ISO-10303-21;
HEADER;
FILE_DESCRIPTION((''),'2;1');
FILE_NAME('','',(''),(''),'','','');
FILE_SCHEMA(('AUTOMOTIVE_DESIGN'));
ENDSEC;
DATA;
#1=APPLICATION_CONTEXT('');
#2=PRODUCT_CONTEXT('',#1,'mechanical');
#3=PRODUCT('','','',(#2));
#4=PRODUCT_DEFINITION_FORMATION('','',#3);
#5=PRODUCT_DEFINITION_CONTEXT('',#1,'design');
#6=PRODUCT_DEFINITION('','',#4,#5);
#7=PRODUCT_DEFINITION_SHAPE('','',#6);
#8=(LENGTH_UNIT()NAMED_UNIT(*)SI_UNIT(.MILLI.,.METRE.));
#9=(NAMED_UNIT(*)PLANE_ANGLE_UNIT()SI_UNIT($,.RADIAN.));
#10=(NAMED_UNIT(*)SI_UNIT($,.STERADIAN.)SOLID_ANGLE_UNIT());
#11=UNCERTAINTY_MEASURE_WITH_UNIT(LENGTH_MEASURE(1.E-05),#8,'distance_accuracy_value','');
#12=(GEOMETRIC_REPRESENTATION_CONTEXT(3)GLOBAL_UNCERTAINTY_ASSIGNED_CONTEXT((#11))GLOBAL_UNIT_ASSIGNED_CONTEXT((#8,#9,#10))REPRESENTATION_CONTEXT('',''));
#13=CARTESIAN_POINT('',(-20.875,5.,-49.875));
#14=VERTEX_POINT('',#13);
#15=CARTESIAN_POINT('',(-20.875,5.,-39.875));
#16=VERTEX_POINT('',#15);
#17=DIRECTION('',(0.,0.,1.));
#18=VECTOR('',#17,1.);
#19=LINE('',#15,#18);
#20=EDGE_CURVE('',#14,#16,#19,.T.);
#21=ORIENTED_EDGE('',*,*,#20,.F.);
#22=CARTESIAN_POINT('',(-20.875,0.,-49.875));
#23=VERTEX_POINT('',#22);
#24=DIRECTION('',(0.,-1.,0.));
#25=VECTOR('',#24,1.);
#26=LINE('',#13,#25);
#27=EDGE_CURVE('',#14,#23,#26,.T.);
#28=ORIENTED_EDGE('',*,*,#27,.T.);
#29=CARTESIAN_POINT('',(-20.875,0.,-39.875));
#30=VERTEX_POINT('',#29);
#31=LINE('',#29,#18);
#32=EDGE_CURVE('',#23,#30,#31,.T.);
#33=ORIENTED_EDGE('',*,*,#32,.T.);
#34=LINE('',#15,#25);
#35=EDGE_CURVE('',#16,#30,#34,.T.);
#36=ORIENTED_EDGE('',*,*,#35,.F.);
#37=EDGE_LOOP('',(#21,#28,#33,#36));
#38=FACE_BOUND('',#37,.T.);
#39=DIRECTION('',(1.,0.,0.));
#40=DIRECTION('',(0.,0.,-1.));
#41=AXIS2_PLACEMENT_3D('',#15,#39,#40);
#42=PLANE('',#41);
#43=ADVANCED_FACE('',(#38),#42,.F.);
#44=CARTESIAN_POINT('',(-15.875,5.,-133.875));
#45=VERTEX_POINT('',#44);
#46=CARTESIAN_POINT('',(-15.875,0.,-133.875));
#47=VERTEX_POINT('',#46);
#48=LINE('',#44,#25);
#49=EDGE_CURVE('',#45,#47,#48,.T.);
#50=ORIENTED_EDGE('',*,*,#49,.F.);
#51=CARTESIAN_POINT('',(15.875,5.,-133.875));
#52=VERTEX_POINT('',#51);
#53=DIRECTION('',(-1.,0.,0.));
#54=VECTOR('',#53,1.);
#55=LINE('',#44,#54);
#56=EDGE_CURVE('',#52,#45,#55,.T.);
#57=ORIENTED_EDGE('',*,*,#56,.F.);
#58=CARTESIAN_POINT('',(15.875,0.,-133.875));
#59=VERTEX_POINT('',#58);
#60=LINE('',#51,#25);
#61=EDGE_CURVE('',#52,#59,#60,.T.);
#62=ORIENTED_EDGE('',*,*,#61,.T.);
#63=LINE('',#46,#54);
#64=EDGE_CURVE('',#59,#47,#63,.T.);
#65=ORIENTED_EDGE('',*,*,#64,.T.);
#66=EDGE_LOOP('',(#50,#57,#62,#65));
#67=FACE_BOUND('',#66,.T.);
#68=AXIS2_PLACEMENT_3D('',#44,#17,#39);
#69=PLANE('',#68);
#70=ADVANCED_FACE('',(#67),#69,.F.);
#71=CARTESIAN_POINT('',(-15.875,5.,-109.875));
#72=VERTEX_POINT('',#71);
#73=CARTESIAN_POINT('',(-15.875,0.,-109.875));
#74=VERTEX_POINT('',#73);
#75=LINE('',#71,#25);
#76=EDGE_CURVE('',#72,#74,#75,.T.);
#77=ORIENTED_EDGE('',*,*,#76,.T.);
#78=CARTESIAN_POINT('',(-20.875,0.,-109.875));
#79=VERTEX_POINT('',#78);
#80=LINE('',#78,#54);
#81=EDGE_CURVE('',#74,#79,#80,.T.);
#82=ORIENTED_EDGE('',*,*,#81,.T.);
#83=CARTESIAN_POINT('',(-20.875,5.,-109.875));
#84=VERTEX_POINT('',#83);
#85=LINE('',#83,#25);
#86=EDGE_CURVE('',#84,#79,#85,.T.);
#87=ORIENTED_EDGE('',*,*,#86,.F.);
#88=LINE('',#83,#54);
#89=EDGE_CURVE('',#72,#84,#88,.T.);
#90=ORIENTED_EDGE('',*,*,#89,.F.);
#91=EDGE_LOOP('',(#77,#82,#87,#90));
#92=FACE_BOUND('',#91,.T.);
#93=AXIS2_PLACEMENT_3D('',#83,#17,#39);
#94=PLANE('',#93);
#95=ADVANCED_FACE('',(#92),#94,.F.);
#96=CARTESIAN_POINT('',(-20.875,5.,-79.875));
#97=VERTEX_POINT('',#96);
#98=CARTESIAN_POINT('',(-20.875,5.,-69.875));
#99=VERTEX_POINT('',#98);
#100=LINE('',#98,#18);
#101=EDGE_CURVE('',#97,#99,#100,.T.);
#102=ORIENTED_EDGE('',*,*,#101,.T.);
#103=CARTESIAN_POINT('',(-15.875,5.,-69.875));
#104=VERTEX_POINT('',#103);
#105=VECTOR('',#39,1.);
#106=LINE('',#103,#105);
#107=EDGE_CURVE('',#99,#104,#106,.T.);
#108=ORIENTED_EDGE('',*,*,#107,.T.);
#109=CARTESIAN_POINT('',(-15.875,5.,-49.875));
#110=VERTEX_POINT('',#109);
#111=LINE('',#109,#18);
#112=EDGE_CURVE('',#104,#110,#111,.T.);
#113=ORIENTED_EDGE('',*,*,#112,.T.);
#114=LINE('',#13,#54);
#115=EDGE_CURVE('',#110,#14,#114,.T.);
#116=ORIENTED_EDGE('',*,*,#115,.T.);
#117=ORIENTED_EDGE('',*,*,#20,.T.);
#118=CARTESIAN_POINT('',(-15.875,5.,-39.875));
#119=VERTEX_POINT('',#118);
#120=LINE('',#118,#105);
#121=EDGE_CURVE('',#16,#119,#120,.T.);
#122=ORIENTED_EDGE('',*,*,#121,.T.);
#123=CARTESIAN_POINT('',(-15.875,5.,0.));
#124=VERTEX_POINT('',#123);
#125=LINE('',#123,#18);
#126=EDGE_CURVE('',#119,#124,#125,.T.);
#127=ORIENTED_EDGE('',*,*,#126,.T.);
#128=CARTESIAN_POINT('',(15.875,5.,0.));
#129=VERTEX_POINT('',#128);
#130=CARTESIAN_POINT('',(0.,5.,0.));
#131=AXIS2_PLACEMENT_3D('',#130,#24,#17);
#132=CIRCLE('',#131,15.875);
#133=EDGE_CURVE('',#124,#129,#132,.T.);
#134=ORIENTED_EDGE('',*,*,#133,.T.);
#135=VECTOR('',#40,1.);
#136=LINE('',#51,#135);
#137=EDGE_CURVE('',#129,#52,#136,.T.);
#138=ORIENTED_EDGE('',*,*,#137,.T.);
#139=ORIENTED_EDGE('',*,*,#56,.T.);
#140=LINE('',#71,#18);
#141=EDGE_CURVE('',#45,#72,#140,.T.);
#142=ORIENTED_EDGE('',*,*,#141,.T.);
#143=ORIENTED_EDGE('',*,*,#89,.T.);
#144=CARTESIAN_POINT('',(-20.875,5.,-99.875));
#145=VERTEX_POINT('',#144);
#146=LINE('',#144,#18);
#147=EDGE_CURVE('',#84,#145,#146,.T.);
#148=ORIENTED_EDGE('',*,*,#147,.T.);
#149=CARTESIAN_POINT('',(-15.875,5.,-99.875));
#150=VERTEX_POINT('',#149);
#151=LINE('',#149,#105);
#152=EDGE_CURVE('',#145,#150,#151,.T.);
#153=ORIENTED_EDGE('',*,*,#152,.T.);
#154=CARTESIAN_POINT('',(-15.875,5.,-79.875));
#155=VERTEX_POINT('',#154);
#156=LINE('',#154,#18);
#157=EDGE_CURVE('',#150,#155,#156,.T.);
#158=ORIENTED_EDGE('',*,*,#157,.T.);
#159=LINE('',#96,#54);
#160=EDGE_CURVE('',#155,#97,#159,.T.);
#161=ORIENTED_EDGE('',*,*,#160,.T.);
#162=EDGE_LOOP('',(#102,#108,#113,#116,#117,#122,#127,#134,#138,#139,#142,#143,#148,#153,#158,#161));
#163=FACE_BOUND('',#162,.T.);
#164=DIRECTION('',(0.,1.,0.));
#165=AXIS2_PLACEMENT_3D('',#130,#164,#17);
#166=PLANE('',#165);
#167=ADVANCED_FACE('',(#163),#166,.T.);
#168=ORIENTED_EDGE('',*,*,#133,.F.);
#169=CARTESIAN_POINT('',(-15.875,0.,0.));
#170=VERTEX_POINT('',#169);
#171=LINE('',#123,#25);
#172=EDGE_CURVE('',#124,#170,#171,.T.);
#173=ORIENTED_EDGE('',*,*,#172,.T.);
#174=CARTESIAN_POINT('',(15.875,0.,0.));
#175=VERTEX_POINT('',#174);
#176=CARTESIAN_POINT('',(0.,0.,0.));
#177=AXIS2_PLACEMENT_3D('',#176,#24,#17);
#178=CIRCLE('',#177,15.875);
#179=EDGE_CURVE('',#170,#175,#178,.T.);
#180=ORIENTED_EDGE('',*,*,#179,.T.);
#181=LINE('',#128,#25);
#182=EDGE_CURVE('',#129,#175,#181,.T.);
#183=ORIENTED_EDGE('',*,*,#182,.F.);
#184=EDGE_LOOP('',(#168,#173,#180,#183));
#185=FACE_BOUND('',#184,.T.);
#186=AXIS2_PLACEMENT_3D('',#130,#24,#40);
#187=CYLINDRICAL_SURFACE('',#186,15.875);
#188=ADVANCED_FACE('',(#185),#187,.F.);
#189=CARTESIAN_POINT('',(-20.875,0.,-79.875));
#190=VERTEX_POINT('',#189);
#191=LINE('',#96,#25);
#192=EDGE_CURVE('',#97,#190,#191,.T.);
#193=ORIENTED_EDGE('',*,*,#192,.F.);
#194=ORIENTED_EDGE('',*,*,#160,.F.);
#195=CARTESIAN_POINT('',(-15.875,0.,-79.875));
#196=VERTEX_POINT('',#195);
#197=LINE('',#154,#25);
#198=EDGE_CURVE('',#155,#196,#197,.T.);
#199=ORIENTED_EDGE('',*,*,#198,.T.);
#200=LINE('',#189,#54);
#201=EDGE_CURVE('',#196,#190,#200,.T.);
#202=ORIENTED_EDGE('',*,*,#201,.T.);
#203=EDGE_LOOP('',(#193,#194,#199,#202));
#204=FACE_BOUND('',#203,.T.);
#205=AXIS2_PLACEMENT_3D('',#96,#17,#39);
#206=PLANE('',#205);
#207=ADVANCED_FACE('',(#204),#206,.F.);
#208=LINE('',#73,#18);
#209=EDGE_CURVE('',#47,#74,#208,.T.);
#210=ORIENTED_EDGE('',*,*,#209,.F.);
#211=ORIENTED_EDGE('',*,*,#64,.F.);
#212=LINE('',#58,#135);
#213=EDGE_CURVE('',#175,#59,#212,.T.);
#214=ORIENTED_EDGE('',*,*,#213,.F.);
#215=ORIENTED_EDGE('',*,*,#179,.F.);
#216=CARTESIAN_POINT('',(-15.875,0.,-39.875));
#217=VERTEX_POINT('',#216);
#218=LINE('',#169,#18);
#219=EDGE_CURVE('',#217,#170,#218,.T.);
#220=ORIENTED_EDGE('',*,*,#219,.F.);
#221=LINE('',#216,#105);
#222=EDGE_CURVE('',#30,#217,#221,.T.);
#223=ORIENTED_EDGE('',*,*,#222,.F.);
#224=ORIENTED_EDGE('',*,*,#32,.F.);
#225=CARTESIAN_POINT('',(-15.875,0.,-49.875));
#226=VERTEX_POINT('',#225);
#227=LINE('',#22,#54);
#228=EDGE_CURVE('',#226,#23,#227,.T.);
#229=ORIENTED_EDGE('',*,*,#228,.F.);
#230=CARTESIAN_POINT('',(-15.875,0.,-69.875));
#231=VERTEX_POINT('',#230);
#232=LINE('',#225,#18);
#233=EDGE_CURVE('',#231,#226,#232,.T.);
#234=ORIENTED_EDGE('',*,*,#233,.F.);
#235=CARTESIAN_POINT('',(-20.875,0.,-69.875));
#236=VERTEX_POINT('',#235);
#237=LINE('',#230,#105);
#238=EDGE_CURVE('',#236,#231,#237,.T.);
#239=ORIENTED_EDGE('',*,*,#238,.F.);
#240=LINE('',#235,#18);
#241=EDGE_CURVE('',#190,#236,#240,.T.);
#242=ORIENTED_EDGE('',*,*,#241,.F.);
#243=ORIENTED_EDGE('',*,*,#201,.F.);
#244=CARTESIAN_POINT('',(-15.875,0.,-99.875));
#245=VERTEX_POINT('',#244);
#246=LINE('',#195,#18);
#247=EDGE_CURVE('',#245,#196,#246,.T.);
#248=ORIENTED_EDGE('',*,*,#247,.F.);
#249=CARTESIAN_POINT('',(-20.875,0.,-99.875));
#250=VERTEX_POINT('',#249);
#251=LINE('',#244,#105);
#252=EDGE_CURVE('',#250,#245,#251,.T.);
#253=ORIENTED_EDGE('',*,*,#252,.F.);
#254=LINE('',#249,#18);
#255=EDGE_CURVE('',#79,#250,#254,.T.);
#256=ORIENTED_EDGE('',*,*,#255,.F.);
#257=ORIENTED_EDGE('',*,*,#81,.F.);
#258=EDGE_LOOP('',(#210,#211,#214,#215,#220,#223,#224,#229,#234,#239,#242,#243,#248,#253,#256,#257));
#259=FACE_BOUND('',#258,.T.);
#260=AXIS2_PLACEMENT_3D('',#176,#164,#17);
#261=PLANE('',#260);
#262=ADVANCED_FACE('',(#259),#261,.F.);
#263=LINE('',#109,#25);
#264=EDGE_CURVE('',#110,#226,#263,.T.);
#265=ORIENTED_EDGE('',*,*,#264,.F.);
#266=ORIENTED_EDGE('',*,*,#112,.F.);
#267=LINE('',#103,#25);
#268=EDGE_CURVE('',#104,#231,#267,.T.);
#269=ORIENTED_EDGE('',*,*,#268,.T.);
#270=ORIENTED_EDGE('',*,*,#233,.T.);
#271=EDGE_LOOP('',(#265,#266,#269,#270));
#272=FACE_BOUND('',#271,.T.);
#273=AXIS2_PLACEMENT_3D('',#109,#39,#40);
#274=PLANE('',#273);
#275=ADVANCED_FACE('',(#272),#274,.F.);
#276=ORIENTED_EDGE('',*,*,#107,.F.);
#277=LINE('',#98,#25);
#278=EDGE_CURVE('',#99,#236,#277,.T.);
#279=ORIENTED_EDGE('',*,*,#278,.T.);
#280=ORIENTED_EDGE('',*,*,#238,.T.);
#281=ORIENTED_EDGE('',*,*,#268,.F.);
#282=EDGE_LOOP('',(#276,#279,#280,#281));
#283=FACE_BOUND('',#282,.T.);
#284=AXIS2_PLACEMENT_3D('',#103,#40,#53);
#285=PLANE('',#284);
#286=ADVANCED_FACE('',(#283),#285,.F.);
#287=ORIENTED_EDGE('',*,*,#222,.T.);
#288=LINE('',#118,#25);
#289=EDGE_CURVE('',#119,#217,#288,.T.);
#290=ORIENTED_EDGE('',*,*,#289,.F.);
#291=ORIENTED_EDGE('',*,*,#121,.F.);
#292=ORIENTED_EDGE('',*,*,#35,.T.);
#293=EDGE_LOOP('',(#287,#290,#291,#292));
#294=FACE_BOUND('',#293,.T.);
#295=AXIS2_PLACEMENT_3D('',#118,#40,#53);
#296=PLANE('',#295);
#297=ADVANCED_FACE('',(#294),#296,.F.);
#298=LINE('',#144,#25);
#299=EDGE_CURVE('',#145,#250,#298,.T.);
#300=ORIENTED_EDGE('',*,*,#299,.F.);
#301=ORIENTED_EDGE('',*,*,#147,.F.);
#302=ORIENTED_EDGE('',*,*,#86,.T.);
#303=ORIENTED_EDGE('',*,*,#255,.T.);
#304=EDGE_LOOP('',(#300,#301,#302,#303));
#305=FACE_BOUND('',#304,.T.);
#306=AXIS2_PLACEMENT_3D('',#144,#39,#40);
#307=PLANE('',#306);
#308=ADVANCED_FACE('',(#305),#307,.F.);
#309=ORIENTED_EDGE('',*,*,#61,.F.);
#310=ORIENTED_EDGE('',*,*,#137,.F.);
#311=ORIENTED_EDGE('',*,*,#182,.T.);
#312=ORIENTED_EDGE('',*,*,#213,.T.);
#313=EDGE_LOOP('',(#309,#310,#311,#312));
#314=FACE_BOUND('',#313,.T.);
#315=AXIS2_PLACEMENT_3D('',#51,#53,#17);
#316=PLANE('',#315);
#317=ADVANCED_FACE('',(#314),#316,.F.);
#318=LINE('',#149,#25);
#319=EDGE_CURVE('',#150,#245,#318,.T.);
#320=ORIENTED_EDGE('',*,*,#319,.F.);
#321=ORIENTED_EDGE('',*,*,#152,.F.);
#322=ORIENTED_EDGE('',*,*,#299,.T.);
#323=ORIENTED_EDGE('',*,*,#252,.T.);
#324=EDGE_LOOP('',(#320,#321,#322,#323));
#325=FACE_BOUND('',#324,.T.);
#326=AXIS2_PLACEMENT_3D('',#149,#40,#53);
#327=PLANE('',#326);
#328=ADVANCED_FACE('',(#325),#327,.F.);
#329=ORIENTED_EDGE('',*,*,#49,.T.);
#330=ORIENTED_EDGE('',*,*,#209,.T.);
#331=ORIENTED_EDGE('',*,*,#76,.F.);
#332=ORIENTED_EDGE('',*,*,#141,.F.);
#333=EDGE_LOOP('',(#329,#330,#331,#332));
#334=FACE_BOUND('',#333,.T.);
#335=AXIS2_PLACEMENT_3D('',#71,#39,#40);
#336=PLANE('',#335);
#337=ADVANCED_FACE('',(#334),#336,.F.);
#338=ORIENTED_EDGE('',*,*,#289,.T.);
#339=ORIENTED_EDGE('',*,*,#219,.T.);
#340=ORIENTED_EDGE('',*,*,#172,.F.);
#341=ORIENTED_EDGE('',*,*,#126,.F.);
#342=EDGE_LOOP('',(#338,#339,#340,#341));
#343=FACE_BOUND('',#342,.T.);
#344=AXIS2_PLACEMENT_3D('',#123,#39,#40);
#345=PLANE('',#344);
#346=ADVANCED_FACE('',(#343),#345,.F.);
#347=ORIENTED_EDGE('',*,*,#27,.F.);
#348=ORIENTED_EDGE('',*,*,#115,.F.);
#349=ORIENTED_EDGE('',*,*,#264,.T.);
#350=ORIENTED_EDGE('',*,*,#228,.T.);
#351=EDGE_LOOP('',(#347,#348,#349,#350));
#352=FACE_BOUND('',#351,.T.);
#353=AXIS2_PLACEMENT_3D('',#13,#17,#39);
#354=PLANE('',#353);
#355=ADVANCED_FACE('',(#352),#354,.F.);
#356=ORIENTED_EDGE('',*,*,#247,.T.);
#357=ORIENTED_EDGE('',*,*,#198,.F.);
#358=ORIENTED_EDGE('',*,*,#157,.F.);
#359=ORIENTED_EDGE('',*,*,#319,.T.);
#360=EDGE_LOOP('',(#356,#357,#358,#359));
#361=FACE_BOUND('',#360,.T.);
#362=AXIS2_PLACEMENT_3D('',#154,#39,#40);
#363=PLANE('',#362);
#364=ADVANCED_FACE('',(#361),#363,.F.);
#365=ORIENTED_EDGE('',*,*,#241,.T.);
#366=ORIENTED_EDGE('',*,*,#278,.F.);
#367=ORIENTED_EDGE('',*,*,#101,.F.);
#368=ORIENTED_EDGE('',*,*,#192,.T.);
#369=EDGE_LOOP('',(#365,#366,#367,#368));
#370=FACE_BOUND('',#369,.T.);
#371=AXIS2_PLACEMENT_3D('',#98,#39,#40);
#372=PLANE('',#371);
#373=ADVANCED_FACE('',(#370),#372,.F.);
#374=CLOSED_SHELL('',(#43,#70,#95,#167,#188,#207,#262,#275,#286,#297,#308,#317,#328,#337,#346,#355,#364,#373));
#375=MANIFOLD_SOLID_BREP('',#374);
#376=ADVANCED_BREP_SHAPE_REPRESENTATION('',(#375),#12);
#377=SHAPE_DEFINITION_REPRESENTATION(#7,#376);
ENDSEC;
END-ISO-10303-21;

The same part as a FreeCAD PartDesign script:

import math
import FreeCAD as App
import Part
import Sketcher
from FreeCAD import Vector
Q = App.Units.Quantity

doc = App.newDocument("Part")
body = doc.addObject("PartDesign::Body", "Body")

# Sketch on XZ plane
sketch1 = body.newObject("Sketcher::SketchObject", "Sketch")
sketch1.AttachmentSupport = (doc.getObject("XZ_Plane"), [""])
sketch1.MapMode = "FlatFace"
sketch1.addGeometry([
    Part.LineSegment(Vector(-16, -134, 0), Vector(-16, -110, 0)),  # 0
    Part.LineSegment(Vector(-16, -110, 0), Vector(-21, -110, 0)),  # 1
    Part.LineSegment(Vector(-21, -110, 0), Vector(-21, -100, 0)),  # 2
    Part.LineSegment(Vector(-21, -100, 0), Vector(-16, -100, 0)),  # 3
    Part.LineSegment(Vector(-16, -100, 0), Vector(-16, -80, 0)),  # 4
    Part.LineSegment(Vector(-16, -80, 0), Vector(-21, -80, 0)),  # 5
    Part.LineSegment(Vector(-21, -80, 0), Vector(-21, -70, 0)),  # 6
    Part.LineSegment(Vector(-21, -70, 0), Vector(-16, -70, 0)),  # 7
    Part.LineSegment(Vector(-16, -70, 0), Vector(-16, -50, 0)),  # 8
    Part.LineSegment(Vector(-16, -50, 0), Vector(-21, -50, 0)),  # 9
    Part.LineSegment(Vector(-21, -50, 0), Vector(-21, -40, 0)),  # 10
    Part.LineSegment(Vector(-21, -40, 0), Vector(-16, -40, 0)),  # 11
    Part.LineSegment(Vector(-16, -40, 0), Vector(-16, 0, 0)),  # 12
    Part.ArcOfCircle(Part.Circle(Vector(0, 0, 0), Vector(0, 0, 1), 16), math.radians(180), math.radians(360)),  # 13
    Part.LineSegment(Vector(16, 0, 0), Vector(16, -134, 0)),  # 14
    Part.LineSegment(Vector(16, -134, 0), Vector(-16, -134, 0)),  # 15
], False)
sketch1.addConstraint([
    Sketcher.Constraint("Coincident", 0, 2, 1, 1),
    Sketcher.Constraint("Coincident", 1, 2, 2, 1),
    Sketcher.Constraint("Coincident", 2, 2, 3, 1),
    Sketcher.Constraint("Coincident", 3, 2, 4, 1),
    Sketcher.Constraint("Coincident", 4, 2, 5, 1),
    Sketcher.Constraint("Coincident", 5, 2, 6, 1),
    Sketcher.Constraint("Coincident", 6, 2, 7, 1),
    Sketcher.Constraint("Coincident", 7, 2, 8, 1),
    Sketcher.Constraint("Coincident", 8, 2, 9, 1),
    Sketcher.Constraint("Coincident", 9, 2, 10, 1),
    Sketcher.Constraint("Coincident", 10, 2, 11, 1),
    Sketcher.Constraint("Coincident", 11, 2, 12, 1),
    Sketcher.Constraint("Tangent", 12, 2, 13, 1),
    Sketcher.Constraint("Tangent", 13, 2, 14, 1),
    Sketcher.Constraint("Coincident", 14, 2, 15, 1),
    Sketcher.Constraint("Coincident", 15, 2, 0, 1),
    Sketcher.Constraint("Vertical", 0),
    Sketcher.Constraint("Horizontal", 1),
    Sketcher.Constraint("Vertical", 2),
    Sketcher.Constraint("Horizontal", 3),
    Sketcher.Constraint("Vertical", 4),
    Sketcher.Constraint("Horizontal", 5),
    Sketcher.Constraint("Vertical", 6),
    Sketcher.Constraint("Horizontal", 7),
    Sketcher.Constraint("Vertical", 8),
    Sketcher.Constraint("Horizontal", 9),
    Sketcher.Constraint("Vertical", 10),
    Sketcher.Constraint("Horizontal", 11),
    Sketcher.Constraint("Vertical", 12),
    Sketcher.Constraint("Vertical", 14),
    Sketcher.Constraint("Horizontal", 15),
    Sketcher.Constraint("Coincident", 13, 3, -1, 1),
    Sketcher.Constraint("Vertical", 0, 2, 3, 2),
    Sketcher.Constraint("Vertical", 2, 2, 5, 2),
    Sketcher.Constraint("Vertical", 4, 2, 7, 2),
    Sketcher.Constraint("Vertical", 6, 2, 9, 2),
    Sketcher.Constraint("Vertical", 8, 2, 11, 2),
    Sketcher.Constraint("Equal", 2, 6),
    Sketcher.Constraint("Equal", 4, 8),
    Sketcher.Constraint("Equal", 6, 10),
    Sketcher.Constraint("DistanceX", 1, 2, 1, 1, Q("5 mm")),
    Sketcher.Constraint("DistanceY", 0, 1, 0, 2, Q("24 mm")),
    Sketcher.Constraint("DistanceY", 2, 1, 2, 2, Q("10 mm")),
    Sketcher.Constraint("DistanceY", 4, 1, 4, 2, Q("20 mm")),
    Sketcher.Constraint("Radius", 13, Q("15.875 mm")),
    Sketcher.Constraint("DistanceY", 12, 1, 12, 2, Q("39.875 mm")),
])
pad1 = body.newObject("PartDesign::Pad", "Pad")
pad1.Profile = sketch1
pad1.Length = 5
pad1.Reversed = True

doc.recompute()
